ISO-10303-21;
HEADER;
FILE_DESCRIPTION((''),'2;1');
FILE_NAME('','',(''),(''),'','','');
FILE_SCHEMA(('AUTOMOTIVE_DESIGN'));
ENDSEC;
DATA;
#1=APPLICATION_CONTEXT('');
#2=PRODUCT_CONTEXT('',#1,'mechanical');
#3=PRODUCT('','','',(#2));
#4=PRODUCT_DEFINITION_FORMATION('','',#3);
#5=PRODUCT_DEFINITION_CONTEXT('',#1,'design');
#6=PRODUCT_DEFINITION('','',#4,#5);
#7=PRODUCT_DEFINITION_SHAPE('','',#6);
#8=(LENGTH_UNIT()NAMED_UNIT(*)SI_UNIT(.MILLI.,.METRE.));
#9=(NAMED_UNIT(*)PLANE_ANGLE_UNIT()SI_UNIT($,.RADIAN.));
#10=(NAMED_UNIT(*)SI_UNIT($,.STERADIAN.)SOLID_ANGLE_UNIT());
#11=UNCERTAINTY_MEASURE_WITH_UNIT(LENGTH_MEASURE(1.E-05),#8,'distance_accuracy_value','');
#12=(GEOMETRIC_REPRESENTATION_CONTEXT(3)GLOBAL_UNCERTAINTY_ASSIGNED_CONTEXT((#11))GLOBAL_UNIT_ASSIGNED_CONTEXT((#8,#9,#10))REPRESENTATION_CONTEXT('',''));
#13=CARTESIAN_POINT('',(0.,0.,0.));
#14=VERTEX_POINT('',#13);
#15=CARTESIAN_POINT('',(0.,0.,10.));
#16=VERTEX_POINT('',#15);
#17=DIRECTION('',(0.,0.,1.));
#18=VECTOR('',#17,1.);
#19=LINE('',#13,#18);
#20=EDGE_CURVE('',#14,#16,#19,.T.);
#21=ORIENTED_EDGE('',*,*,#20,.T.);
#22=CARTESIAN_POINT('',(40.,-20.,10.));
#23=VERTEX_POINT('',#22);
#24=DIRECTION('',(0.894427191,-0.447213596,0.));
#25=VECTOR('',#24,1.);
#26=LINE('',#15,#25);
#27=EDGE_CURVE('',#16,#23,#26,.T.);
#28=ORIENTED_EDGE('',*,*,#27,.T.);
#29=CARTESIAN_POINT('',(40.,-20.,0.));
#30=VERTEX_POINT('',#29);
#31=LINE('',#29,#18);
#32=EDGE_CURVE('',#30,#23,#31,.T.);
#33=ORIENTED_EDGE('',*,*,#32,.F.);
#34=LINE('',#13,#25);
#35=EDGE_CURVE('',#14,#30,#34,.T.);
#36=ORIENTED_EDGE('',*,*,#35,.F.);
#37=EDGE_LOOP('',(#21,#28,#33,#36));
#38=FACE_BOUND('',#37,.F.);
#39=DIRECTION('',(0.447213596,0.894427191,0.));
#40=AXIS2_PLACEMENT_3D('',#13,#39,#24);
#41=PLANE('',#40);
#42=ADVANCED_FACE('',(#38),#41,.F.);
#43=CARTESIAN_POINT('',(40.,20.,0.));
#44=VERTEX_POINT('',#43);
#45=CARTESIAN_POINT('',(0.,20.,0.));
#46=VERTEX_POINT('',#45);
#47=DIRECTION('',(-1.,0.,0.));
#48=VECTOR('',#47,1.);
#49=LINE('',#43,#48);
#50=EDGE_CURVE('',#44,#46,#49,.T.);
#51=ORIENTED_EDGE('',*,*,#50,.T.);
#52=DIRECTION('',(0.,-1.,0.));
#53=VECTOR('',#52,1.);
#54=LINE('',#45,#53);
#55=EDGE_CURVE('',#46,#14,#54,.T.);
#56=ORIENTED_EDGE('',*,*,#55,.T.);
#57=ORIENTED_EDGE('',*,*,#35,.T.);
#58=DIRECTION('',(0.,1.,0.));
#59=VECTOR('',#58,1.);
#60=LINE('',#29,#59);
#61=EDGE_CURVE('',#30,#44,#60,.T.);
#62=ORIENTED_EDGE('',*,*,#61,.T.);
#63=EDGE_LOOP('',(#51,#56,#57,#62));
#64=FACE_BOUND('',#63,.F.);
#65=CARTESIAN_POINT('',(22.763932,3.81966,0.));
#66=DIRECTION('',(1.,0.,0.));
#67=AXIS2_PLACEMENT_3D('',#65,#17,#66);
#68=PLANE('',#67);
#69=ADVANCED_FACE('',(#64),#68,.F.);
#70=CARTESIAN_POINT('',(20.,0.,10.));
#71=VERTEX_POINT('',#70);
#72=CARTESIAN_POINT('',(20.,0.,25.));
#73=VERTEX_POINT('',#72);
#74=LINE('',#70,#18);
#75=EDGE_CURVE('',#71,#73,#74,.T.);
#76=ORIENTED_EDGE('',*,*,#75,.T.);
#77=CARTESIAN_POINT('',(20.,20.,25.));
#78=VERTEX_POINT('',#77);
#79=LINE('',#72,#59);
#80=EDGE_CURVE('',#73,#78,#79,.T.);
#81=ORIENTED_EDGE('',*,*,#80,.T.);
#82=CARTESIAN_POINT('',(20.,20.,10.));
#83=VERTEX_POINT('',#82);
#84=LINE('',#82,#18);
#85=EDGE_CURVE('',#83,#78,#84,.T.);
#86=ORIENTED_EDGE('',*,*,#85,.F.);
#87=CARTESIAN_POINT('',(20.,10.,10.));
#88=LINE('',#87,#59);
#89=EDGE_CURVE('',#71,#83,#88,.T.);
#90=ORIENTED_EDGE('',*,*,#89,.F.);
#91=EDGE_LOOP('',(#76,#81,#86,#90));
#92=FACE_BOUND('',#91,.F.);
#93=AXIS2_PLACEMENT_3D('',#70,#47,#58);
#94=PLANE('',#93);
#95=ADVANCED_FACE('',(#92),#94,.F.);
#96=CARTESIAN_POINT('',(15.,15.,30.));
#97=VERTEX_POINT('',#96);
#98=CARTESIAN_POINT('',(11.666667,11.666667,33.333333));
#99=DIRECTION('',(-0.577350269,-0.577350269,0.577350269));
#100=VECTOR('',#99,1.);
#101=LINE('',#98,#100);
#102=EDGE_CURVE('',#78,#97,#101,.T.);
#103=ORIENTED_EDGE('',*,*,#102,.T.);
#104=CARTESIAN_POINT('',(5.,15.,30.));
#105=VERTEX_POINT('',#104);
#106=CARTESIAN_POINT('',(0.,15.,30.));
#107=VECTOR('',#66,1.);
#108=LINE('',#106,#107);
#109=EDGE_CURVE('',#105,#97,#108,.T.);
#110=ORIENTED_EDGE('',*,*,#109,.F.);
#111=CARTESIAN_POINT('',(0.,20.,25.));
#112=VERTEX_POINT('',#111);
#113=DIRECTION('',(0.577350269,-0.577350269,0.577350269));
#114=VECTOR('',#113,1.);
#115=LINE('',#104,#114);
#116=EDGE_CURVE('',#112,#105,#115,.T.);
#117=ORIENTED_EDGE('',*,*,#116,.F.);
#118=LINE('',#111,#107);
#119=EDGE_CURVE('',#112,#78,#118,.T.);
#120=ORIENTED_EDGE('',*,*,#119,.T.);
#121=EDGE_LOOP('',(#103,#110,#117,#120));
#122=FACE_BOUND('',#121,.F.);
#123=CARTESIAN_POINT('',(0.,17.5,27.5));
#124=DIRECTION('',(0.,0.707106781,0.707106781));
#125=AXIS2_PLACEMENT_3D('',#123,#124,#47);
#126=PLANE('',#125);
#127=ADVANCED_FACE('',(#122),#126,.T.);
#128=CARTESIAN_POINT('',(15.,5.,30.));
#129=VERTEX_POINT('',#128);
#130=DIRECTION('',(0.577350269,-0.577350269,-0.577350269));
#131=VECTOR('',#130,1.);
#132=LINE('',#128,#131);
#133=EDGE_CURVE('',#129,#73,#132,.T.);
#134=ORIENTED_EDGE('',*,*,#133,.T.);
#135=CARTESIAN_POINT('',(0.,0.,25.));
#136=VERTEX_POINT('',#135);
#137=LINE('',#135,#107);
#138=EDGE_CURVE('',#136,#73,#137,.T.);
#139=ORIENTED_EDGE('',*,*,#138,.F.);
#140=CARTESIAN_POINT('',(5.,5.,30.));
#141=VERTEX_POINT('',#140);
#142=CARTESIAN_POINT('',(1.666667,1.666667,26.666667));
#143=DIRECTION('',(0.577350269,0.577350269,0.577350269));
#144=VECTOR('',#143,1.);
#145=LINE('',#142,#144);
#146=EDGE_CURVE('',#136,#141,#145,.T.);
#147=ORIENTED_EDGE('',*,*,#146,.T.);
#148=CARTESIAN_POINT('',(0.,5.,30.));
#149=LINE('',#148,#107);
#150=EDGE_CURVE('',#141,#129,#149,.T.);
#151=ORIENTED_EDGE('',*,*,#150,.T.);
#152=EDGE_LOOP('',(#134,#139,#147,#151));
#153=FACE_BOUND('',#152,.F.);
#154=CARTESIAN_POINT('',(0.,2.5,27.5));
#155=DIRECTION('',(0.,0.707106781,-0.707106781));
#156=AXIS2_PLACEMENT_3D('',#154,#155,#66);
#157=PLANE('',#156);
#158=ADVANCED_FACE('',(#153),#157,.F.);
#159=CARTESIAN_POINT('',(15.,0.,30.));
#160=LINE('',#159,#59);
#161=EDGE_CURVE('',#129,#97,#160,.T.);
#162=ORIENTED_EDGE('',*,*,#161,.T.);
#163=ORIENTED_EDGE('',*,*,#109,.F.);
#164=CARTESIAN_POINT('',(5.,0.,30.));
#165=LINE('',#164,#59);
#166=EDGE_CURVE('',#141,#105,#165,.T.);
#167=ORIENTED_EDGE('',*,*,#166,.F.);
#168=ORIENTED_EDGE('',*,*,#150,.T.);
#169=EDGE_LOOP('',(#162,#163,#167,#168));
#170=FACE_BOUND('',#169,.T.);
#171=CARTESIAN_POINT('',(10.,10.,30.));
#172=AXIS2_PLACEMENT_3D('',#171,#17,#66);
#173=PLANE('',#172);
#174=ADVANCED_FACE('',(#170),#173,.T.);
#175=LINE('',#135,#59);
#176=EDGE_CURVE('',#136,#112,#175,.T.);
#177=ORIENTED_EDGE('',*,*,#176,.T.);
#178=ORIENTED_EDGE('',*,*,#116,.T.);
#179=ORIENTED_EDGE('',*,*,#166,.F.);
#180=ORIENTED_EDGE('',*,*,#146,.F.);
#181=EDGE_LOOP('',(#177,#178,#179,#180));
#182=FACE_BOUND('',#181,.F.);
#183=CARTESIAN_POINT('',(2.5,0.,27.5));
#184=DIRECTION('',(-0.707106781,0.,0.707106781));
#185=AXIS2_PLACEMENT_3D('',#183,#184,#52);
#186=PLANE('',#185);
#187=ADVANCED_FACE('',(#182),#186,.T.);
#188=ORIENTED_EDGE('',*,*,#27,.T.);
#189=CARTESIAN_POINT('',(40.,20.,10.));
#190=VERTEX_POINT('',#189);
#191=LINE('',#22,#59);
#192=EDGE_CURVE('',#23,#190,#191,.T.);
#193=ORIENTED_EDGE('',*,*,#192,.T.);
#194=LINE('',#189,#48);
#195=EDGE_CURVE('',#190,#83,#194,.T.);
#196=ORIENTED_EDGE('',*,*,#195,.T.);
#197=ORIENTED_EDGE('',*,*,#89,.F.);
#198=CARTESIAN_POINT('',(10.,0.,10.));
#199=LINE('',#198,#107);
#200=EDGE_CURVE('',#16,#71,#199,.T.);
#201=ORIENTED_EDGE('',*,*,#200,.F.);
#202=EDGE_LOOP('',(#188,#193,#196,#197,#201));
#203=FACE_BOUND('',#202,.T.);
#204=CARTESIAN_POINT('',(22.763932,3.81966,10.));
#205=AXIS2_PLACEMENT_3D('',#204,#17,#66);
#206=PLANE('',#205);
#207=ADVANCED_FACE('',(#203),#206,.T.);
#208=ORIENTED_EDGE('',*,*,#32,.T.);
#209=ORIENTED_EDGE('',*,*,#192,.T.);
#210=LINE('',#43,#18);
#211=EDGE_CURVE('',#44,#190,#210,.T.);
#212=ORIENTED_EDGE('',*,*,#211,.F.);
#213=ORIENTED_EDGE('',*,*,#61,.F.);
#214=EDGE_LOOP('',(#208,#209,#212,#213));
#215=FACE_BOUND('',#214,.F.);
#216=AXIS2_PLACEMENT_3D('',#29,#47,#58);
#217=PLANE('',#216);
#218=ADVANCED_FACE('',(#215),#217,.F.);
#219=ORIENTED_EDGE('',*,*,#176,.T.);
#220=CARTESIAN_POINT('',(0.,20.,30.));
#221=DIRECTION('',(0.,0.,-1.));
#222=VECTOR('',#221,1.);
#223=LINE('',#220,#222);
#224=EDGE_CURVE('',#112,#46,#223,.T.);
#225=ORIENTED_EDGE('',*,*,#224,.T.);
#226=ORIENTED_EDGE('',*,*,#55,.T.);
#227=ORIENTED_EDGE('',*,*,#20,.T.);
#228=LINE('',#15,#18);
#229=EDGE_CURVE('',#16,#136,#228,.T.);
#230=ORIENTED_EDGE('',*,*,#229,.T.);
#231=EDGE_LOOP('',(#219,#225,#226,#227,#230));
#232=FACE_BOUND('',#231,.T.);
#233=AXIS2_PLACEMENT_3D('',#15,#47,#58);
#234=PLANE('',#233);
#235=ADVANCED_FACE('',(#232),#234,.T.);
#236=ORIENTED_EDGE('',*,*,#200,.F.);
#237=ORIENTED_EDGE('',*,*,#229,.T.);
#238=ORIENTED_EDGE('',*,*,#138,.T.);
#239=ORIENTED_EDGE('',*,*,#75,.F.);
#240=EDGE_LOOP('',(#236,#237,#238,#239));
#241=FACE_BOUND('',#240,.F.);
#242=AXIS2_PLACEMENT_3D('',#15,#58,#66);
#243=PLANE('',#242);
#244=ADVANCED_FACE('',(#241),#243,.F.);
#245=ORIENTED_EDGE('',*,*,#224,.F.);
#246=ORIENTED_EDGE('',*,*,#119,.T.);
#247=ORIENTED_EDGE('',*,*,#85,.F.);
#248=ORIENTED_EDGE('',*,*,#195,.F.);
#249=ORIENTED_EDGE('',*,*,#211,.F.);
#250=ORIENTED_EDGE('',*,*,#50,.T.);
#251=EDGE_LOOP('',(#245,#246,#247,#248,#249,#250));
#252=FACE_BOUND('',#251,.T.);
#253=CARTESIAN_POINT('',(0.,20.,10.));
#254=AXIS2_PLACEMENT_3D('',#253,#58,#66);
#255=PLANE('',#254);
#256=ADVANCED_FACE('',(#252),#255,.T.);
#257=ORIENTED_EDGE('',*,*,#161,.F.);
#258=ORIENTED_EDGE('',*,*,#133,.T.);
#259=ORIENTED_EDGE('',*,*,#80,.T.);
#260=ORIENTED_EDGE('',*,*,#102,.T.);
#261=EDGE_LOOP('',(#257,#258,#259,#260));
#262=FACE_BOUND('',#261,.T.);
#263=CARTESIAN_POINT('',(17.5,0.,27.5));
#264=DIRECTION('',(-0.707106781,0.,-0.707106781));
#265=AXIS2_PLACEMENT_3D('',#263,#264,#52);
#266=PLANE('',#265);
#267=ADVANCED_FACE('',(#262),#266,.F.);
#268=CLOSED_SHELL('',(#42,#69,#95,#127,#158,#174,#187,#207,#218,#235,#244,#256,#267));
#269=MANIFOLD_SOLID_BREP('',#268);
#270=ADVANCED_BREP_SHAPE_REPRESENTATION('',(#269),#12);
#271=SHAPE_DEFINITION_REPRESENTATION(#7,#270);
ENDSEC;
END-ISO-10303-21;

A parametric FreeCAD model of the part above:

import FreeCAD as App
import Part
import Sketcher
Q = App.Units.Quantity


def edges_at(feature, points):
    """Names of the edges that pass closest to the given points."""
    edges = feature.Shape.Edges
    near = lambda p: min(range(len(edges)), key=lambda i: edges[i].distToShape(Part.Vertex(*p))[0])
    return sorted({f"Edge{near(p) + 1}" for p in points})

doc = App.newDocument("Part")
body = doc.addObject("PartDesign::Body", "Body")

# Sketch on XY plane
sketch1 = doc.addObject("Sketcher::SketchObject", "Sketch")
body.addObject(sketch1)
sketch1.AttachmentSupport = (doc.XY_Plane, [""])
sketch1.MapMode = "FlatFace"
sketch1.addGeometry([
    Part.LineSegment(App.Vector(0, 20, 0), App.Vector(0, 0, 0)),
    Part.LineSegment(App.Vector(0, 0, 0), App.Vector(40, -20, 0)),
    Part.LineSegment(App.Vector(40, -20, 0), App.Vector(40, 20, 0)),
    Part.LineSegment(App.Vector(40, 20, 0), App.Vector(0, 20, 0)),
], False)
sketch1.addConstraint([
    Sketcher.Constraint("Coincident", 0, 2, 1, 1),
    Sketcher.Constraint("Coincident", 1, 2, 2, 1),
    Sketcher.Constraint("Coincident", 2, 2, 3, 1),
    Sketcher.Constraint("Coincident", 3, 2, 0, 1),
    Sketcher.Constraint("Vertical", 0),
    Sketcher.Constraint("Vertical", 2),
    Sketcher.Constraint("Horizontal", 3),
    Sketcher.Constraint("Coincident", 0, 2, -1, 1),
    Sketcher.Constraint("Equal", 3, 2),
    Sketcher.Constraint("DistanceX", 3, 2, 3, 1, Q("40 mm")),
    Sketcher.Constraint("DistanceY", 0, 2, 0, 1, Q("20 mm")),
])
pad1 = doc.addObject("PartDesign::Pad", "Pad")
body.addObject(pad1)
pad1.Profile = sketch1
pad1.Length = 10

# Sketch on XY plane
sketch2 = doc.addObject("Sketcher::SketchObject", "Sketch001")
body.addObject(sketch2)
sketch2.AttachmentSupport = (doc.XY_Plane, [""])
sketch2.MapMode = "FlatFace"
sketch2.AttachmentOffset = App.Placement(App.Vector(0, 0, 10), App.Rotation())
sketch2.addGeometry([
    Part.LineSegment(App.Vector(0, 20, 0), App.Vector(0, 0, 0)),
    Part.LineSegment(App.Vector(0, 0, 0), App.Vector(20, 0, 0)),
    Part.LineSegment(App.Vector(20, 0, 0), App.Vector(20, 20, 0)),
    Part.LineSegment(App.Vector(20, 20, 0), App.Vector(0, 20, 0)),
], False)
sketch2.addConstraint([
    Sketcher.Constraint("Coincident", 0, 2, 1, 1),
    Sketcher.Constraint("Coincident", 1, 2, 2, 1),
    Sketcher.Constraint("Coincident", 2, 2, 3, 1),
    Sketcher.Constraint("Coincident", 3, 2, 0, 1),
    Sketcher.Constraint("Vertical", 0),
    Sketcher.Constraint("Horizontal", 1),
    Sketcher.Constraint("Vertical", 2),
    Sketcher.Constraint("Horizontal", 3),
    Sketcher.Constraint("Coincident", 0, 2, -1, 1),
    Sketcher.Constraint("Equal", 3, 0),
    Sketcher.Constraint("DistanceX", 1, 1, 1, 2, Q("20 mm")),
])
pad2 = doc.addObject("PartDesign::Pad", "Pad001")
body.addObject(pad2)
pad2.Profile = sketch2
pad2.Length = 20
doc.recompute()

chamfer = doc.addObject("PartDesign::Chamfer", "Chamfer")
body.addObject(chamfer)
chamfer.Base = (pad2, edges_at(pad2, [
    (0, 10, 30),
    (10, 0, 30),
    (20, 10, 30),
    (10, 20, 30),
]))
chamfer.Size = 5

doc.recompute()
